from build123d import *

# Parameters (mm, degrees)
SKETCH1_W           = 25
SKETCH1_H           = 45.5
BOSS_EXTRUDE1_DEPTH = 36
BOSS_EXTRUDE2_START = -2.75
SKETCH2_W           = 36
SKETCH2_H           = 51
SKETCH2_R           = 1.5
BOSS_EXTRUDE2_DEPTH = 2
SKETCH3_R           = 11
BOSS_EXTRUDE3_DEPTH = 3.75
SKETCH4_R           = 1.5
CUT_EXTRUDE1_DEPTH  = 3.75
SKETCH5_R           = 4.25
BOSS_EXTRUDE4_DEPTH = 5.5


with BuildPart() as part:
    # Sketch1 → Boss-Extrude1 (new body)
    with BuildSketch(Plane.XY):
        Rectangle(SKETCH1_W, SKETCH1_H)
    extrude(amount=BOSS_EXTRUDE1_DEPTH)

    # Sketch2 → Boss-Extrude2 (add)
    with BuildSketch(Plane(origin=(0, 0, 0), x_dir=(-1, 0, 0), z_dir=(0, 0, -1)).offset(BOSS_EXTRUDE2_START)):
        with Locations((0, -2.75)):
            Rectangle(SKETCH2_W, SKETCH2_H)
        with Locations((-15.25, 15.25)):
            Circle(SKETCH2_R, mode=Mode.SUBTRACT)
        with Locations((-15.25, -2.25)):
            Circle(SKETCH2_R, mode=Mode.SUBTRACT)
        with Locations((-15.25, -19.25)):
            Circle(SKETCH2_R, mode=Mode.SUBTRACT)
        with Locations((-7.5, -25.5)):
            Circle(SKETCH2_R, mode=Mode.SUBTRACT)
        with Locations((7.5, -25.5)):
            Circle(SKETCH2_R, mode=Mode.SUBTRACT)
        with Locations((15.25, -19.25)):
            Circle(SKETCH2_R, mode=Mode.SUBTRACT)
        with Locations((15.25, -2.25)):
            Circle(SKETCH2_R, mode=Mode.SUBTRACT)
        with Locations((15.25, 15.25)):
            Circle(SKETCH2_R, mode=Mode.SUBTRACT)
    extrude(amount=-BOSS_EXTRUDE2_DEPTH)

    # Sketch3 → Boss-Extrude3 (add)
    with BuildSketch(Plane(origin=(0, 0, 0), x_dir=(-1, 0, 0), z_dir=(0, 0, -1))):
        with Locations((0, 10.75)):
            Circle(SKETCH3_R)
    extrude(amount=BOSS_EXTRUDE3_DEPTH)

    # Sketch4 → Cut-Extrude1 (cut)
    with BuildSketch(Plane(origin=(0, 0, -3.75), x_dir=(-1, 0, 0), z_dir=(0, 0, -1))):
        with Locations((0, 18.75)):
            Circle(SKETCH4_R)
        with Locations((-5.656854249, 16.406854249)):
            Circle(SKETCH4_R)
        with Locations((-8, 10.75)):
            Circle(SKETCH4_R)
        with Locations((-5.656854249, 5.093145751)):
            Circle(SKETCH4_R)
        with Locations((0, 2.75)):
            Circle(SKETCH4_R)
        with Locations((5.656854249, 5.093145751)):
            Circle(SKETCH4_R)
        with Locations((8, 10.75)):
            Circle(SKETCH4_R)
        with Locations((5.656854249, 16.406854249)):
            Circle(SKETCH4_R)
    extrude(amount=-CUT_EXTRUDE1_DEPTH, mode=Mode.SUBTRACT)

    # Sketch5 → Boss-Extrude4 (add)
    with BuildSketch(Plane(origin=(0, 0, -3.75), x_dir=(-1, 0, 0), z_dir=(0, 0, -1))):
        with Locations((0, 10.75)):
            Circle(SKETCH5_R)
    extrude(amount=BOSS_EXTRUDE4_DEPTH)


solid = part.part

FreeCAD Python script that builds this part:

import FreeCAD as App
import Part
import Sketcher
from FreeCAD import Vector
Q = App.Units.Quantity

doc = App.newDocument("Part")
body = doc.addObject("PartDesign::Body", "Body")

# Sketch on XY plane
sketch1 = body.newObject("Sketcher::SketchObject", "Sketch")
sketch1.AttachmentSupport = (doc.getObject("XY_Plane"), [""])
sketch1.MapMode = "FlatFace"
sketch1.addGeometry([
    Part.LineSegment(Vector(-12, 23, 0), Vector(-12, -23, 0)),
    Part.LineSegment(Vector(-12, -23, 0), Vector(12, -23, 0)),
    Part.LineSegment(Vector(12, -23, 0), Vector(12, 23, 0)),
    Part.LineSegment(Vector(12, 23, 0), Vector(-12, 23, 0)),
], False)
sketch1.addConstraint([
    Sketcher.Constraint("Coincident", 0, 2, 1, 1),
    Sketcher.Constraint("Coincident", 1, 2, 2, 1),
    Sketcher.Constraint("Coincident", 2, 2, 3, 1),
    Sketcher.Constraint("Coincident", 3, 2, 0, 1),
    Sketcher.Constraint("Vertical", 0),
    Sketcher.Constraint("Horizontal", 1),
    Sketcher.Constraint("Vertical", 2),
    Sketcher.Constraint("Horizontal", 3),
    Sketcher.Constraint("Symmetric", 0, 2, 2, 2, -1, 1),
    Sketcher.Constraint("DistanceX", 1, 1, 1, 2, Q("25 mm")),
    Sketcher.Constraint("DistanceY", 0, 2, 0, 1, Q("45.5 mm")),
])
pad1 = body.newObject("PartDesign::Pad", "Pad")
pad1.Profile = sketch1
pad1.Length = 36

# Sketch on XY plane
sketch2 = body.newObject("Sketcher::SketchObject", "Sketch001")
sketch2.AttachmentSupport = (doc.getObject("XY_Plane"), [""])
sketch2.MapMode = "FlatFace"
sketch2.AttachmentOffset = App.Placement(Vector(0, 0, 2.75), App.Rotation())
sketch2.addGeometry([
    Part.LineSegment(Vector(18, 22.8, 0), Vector(18, -28.2, 0)),  # 0
    Part.LineSegment(Vector(18, -28.2, 0), Vector(-18, -28.2, 0)),  # 1
    Part.LineSegment(Vector(-18, -28.2, 0), Vector(-18, 22.8, 0)),  # 2
    Part.LineSegment(Vector(-18, 22.8, 0), Vector(18, 22.8, 0)),  # 3
    Part.Circle(Vector(15.2, -19.2, 0), Vector(0, 0, 1), 1.5),  # 4
    Part.Circle(Vector(7.5, -25.5, 0), Vector(0, 0, 1), 1.5),  # 5
    Part.Circle(Vector(-7.5, -25.5, 0), Vector(0, 0, 1), 1.5),  # 6
    Part.Circle(Vector(-15.2, -19.2, 0), Vector(0, 0, 1), 1.5),  # 7
    Part.Circle(Vector(15.2, -2.2, 0), Vector(0, 0, 1), 1.5),  # 8
    Part.Circle(Vector(15.2, 15.2, 0), Vector(0, 0, 1), 1.5),  # 9
    Part.Circle(Vector(-15.2, -2.2, 0), Vector(0, 0, 1), 1.5),  # 10
    Part.Circle(Vector(-15.2, 15.2, 0), Vector(0, 0, 1), 1.5),  # 11
], False)
sketch2.addConstraint([
    Sketcher.Constraint("Coincident", 0, 2, 1, 1),
    Sketcher.Constraint("Coincident", 1, 2, 2, 1),
    Sketcher.Constraint("Coincident", 2, 2, 3, 1),
    Sketcher.Constraint("Coincident", 3, 2, 0, 1),
    Sketcher.Constraint("Vertical", 0),
    Sketcher.Constraint("Horizontal", 1),
    Sketcher.Constraint("Vertical", 2),
    Sketcher.Constraint("Horizontal", 3),
    Sketcher.Constraint("Equal", 4, 5),
    Sketcher.Constraint("Equal", 5, 6),
    Sketcher.Constraint("Equal", 6, 7),
    Sketcher.Constraint("Equal", 7, 8),
    Sketcher.Constraint("Equal", 8, 9),
    Sketcher.Constraint("Equal", 9, 10),
    Sketcher.Constraint("Equal", 10, 11),
    Sketcher.Constraint("Symmetric", 5, 3, 6, 3, -2),
    Sketcher.Constraint("Symmetric", 4, 3, 7, 3, -2),
    Sketcher.Constraint("Symmetric", 8, 3, 10, 3, -2),
    Sketcher.Constraint("Symmetric", 9, 3, 11, 3, -2),
    Sketcher.Constraint("Vertical", 4, 3, 8, 3),
    Sketcher.Constraint("Vertical", 8, 3, 9, 3),
    Sketcher.Constraint("Diameter", 4, Q("3 mm")),
    Sketcher.Constraint("DistanceX", 1, 2, 1, 1, Q("36 mm")),
    Sketcher.Constraint("DistanceY", 0, 2, 0, 1, Q("51 mm")),
    Sketcher.Constraint("DistanceX", -1, 1, 0, 2, Q("18 mm")),
    Sketcher.Constraint("DistanceX", 6, 3, 5, 3, Q("15 mm")),
    Sketcher.Constraint("DistanceY", 4, 3, 8, 3, Q("17 mm")),
    Sketcher.Constraint("DistanceY", 0, 2, 4, 3, Q("9 mm")),
    Sketcher.Constraint("DistanceY", 5, 3, -1, 1, Q("25.5 mm")),
    Sketcher.Constraint("DistanceX", 7, 3, 4, 3, Q("30.5 mm")),
    Sketcher.Constraint("DistanceY", 8, 3, 9, 3, Q("17.5 mm")),
    Sketcher.Constraint("DistanceY", 4, 3, -1, 1, Q("19.25 mm")),
])
pad2 = body.newObject("PartDesign::Pad", "Pad001")
pad2.Profile = sketch2
pad2.Length = 2

# Sketch on XY plane
sketch3 = body.newObject("Sketcher::SketchObject", "Sketch002")
sketch3.AttachmentSupport = (doc.getObject("XY_Plane"), [""])
sketch3.MapMode = "FlatFace"
sketch3.addGeometry(Part.Circle(Vector(0, 11, 0), Vector(0, 0, 1), 11), False)
sketch3.addConstraint([
    Sketcher.Constraint("PointOnObject", 0, 3, -2),
    Sketcher.Constraint("Diameter", 0, Q("22 mm")),
    Sketcher.Constraint("DistanceY", -1, 1, 0, 3, Q("10.75 mm")),
])
pad3 = body.newObject("PartDesign::Pad", "Pad002")
pad3.Profile = sketch3
pad3.Length = 3.75
pad3.Reversed = True

# Sketch on XY plane
sketch4 = body.newObject("Sketcher::SketchObject", "Sketch003")
sketch4.AttachmentSupport = (doc.getObject("XY_Plane"), [""])
sketch4.MapMode = "FlatFace"
sketch4.AttachmentOffset = App.Placement(Vector(0, 0, -3.75), App.Rotation())
sketch4.addGeometry([
    Part.Circle(Vector(0, 18.8, 0), Vector(0, 0, 1), 1.5),  # 0
    Part.Circle(Vector(5.7, 16.4, 0), Vector(0, 0, 1), 1.5),  # 1
    Part.Circle(Vector(8, 10.8, 0), Vector(0, 0, 1), 1.5),  # 2
    Part.Circle(Vector(5.7, 5.1, 0), Vector(0, 0, 1), 1.5),  # 3
    Part.Circle(Vector(0, 2.8, 0), Vector(0, 0, 1), 1.5),  # 4
    Part.Circle(Vector(-5.7, 5.1, 0), Vector(0, 0, 1), 1.5),  # 5
    Part.Circle(Vector(-8, 10.8, 0), Vector(0, 0, 1), 1.5),  # 6
    Part.Circle(Vector(-5.7, 16.4, 0), Vector(0, 0, 1), 1.5),  # 7
], False)
sketch4.addConstraint([
    Sketcher.Constraint("Equal", 0, 1),
    Sketcher.Constraint("Equal", 1, 2),
    Sketcher.Constraint("Equal", 2, 3),
    Sketcher.Constraint("Equal", 3, 4),
    Sketcher.Constraint("Equal", 4, 5),
    Sketcher.Constraint("Equal", 5, 6),
    Sketcher.Constraint("Equal", 6, 7),
    Sketcher.Constraint("Symmetric", 3, 3, 5, 3, -2),
    Sketcher.Constraint("Symmetric", 2, 3, 6, 3, -2),
    Sketcher.Constraint("Symmetric", 1, 3, 7, 3, -2),
    Sketcher.Constraint("PointOnObject", 0, 3, -2),
    Sketcher.Constraint("PointOnObject", 4, 3, -2),
    Sketcher.Constraint("Vertical", 1, 3, 3, 3),
    Sketcher.Constraint("Diameter", 0, Q("3 mm")),
    Sketcher.Constraint("DistanceX", -1, 1, 2, 3, Q("8 mm")),
    Sketcher.Constraint("DistanceY", 2, 3, 0, 3, Q("8 mm")),
    Sketcher.Constraint("DistanceY", 4, 3, 2, 3, Q("8 mm")),
    Sketcher.Constraint("DistanceY", -1, 1, 0, 3, Q("18.75 mm")),
    Sketcher.Constraint("DistanceY", 3, 3, 1, 3, Q("11.313708 mm")),
    Sketcher.Constraint("DistanceX", 5, 3, 3, 3, Q("11.313708 mm")),
    Sketcher.Constraint("DistanceY", -1, 1, 1, 3, Q("16.406854 mm")),
])
pocket1 = body.newObject("PartDesign::Pocket", "Pocket")
pocket1.Profile = sketch4
pocket1.Length = 3.75
pocket1.Reversed = True

# Sketch on XY plane
sketch5 = body.newObject("Sketcher::SketchObject", "Sketch004")
sketch5.AttachmentSupport = (doc.getObject("XY_Plane"), [""])
sketch5.MapMode = "FlatFace"
sketch5.AttachmentOffset = App.Placement(Vector(0, 0, -3.75), App.Rotation())
sketch5.addGeometry(Part.Circle(Vector(0, 10.8, 0), Vector(0, 0, 1), 4.2), False)
sketch5.addConstraint([
    Sketcher.Constraint("PointOnObject", 0, 3, -2),
    Sketcher.Constraint("Diameter", 0, Q("8.5 mm")),
    Sketcher.Constraint("DistanceY", -1, 1, 0, 3, Q("10.75 mm")),
])
pad4 = body.newObject("PartDesign::Pad", "Pad003")
pad4.Profile = sketch5
pad4.Length = 5.5
pad4.Reversed = True

doc.recompute()
